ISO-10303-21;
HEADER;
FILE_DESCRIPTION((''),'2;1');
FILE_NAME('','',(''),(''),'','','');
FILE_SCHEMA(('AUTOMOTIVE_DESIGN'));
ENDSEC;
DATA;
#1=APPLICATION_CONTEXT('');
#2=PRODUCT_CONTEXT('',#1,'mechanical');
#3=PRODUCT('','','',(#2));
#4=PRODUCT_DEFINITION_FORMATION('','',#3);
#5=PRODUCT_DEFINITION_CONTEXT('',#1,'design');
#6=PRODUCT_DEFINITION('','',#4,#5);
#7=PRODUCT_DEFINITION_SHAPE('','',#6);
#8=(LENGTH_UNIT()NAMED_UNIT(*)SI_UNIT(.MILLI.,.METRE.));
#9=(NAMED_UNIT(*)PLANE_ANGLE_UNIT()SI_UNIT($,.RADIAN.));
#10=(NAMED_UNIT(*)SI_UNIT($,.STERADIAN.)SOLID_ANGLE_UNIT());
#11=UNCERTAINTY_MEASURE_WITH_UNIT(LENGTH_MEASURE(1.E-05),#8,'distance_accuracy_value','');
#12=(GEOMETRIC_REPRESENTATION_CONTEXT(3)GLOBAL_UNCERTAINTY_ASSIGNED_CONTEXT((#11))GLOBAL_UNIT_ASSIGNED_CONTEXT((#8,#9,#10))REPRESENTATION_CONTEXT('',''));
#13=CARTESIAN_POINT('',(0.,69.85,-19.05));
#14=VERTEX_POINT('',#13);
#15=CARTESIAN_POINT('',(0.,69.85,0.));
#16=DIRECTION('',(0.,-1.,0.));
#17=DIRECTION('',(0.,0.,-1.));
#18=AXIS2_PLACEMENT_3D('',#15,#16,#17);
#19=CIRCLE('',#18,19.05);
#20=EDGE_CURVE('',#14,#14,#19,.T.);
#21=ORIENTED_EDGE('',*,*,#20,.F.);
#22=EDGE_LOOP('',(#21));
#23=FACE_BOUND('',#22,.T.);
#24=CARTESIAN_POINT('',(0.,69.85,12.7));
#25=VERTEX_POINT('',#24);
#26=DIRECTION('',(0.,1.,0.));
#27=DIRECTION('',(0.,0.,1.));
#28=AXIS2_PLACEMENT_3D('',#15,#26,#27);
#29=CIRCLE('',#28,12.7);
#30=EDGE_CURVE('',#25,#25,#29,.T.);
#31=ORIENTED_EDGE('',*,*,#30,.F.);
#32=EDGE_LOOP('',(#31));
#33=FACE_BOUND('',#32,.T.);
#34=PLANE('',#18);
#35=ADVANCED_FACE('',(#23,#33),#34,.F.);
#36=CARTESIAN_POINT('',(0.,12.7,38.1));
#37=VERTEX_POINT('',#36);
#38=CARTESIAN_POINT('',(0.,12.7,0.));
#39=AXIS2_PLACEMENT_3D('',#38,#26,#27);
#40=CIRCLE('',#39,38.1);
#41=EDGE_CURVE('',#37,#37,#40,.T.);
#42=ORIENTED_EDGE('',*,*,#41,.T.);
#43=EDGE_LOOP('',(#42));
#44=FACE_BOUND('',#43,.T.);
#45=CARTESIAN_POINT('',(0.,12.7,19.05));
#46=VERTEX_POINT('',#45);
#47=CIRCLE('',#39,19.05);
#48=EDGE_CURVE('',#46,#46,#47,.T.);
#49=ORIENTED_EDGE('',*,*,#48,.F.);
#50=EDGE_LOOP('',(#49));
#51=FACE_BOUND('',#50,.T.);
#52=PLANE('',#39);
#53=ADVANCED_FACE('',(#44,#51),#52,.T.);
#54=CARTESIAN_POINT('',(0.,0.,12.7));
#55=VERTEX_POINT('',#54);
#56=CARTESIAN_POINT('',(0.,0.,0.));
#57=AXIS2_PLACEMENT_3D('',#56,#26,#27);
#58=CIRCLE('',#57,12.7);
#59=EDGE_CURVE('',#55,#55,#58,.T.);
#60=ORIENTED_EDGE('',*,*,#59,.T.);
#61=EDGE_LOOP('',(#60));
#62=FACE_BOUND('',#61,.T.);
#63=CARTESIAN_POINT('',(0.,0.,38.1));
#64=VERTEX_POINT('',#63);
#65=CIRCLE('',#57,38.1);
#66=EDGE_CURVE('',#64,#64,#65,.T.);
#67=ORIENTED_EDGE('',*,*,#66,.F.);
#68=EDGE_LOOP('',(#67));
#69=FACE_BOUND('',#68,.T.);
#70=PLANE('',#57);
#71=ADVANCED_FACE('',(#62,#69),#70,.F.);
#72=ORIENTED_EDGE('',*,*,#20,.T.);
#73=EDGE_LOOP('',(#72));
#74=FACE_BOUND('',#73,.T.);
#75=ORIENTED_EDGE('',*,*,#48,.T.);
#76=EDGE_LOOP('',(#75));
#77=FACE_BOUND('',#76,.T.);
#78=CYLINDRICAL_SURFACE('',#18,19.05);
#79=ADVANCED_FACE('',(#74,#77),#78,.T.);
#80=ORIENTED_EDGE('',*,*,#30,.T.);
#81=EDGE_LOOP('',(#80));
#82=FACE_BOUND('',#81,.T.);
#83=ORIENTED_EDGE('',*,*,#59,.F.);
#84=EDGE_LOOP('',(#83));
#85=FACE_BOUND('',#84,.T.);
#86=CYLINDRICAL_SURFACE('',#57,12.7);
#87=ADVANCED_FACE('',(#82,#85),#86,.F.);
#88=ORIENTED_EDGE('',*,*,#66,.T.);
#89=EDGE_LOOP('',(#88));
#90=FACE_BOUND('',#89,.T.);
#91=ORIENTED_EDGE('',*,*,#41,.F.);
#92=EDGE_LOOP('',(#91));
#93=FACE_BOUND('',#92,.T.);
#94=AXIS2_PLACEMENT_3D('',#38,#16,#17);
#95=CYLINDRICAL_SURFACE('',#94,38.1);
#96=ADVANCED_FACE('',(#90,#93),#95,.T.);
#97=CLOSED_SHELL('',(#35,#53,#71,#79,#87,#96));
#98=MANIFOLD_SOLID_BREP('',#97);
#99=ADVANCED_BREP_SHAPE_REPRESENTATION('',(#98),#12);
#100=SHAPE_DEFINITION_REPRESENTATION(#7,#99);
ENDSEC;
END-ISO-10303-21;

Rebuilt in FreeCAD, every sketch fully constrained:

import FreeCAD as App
import Part
import Sketcher
Q = App.Units.Quantity

doc = App.newDocument("Part")
body = doc.addObject("PartDesign::Body", "Body")

# Sketch on XZ plane
sketch1 = body.newObject("Sketcher::SketchObject", "Sketch")
sketch1.AttachmentSupport = (doc.getObject("XZ_Plane"), [""])
sketch1.MapMode = "FlatFace"
sketch1.addGeometry([
    Part.Circle(App.Vector(0, 0, 0), App.Vector(0, 0, 1), 38),
    Part.Circle(App.Vector(0, 0, 0), App.Vector(0, 0, 1), 19),
], False)
sketch1.addConstraint([
    Sketcher.Constraint("Coincident", 0, 3, -1, 1),
    Sketcher.Constraint("Coincident", 1, 3, -1, 1),
    Sketcher.Constraint("Diameter", 0, Q("3 in")),
    Sketcher.Constraint("Diameter", 1, Q("1.5 in")),
])
pad1 = body.newObject("PartDesign::Pad", "Pad")
pad1.Profile = sketch1
pad1.Length = Q("0.5 in")
pad1.Reversed = True

# Sketch on XZ plane
sketch2 = body.newObject("Sketcher::SketchObject", "Sketch001")
sketch2.AttachmentSupport = (doc.getObject("XZ_Plane"), [""])
sketch2.MapMode = "FlatFace"
sketch2.addGeometry(Part.Circle(App.Vector(0, 0, 0), App.Vector(0, 0, 1), 19), False)
sketch2.addConstraint([
    Sketcher.Constraint("Coincident", 0, 3, -1, 1),
    Sketcher.Constraint("Diameter", 0, Q("1.5 in")),
])
pad2 = body.newObject("PartDesign::Pad", "Pad001")
pad2.Profile = sketch2
pad2.Length = Q("2.75 in")
pad2.Reversed = True

# Sketch on XZ plane
sketch3 = body.newObject("Sketcher::SketchObject", "Sketch002")
sketch3.AttachmentSupport = (doc.getObject("XZ_Plane"), [""])
sketch3.MapMode = "FlatFace"
sketch3.AttachmentOffset = App.Placement(App.Vector(0, 0, -2.75 * 25.4), App.Rotation())
sketch3.addGeometry(Part.Circle(App.Vector(0, 0, 0), App.Vector(0, 0, 1), 13), False)
sketch3.addConstraint([
    Sketcher.Constraint("Coincident", 0, 3, -1, 1),
    Sketcher.Constraint("Diameter", 0, Q("1 in")),
])
pocket1 = body.newObject("PartDesign::Pocket", "Pocket")
pocket1.Profile = sketch3
pocket1.Length = Q("2.75 in")
pocket1.Reversed = True

doc.recompute()
